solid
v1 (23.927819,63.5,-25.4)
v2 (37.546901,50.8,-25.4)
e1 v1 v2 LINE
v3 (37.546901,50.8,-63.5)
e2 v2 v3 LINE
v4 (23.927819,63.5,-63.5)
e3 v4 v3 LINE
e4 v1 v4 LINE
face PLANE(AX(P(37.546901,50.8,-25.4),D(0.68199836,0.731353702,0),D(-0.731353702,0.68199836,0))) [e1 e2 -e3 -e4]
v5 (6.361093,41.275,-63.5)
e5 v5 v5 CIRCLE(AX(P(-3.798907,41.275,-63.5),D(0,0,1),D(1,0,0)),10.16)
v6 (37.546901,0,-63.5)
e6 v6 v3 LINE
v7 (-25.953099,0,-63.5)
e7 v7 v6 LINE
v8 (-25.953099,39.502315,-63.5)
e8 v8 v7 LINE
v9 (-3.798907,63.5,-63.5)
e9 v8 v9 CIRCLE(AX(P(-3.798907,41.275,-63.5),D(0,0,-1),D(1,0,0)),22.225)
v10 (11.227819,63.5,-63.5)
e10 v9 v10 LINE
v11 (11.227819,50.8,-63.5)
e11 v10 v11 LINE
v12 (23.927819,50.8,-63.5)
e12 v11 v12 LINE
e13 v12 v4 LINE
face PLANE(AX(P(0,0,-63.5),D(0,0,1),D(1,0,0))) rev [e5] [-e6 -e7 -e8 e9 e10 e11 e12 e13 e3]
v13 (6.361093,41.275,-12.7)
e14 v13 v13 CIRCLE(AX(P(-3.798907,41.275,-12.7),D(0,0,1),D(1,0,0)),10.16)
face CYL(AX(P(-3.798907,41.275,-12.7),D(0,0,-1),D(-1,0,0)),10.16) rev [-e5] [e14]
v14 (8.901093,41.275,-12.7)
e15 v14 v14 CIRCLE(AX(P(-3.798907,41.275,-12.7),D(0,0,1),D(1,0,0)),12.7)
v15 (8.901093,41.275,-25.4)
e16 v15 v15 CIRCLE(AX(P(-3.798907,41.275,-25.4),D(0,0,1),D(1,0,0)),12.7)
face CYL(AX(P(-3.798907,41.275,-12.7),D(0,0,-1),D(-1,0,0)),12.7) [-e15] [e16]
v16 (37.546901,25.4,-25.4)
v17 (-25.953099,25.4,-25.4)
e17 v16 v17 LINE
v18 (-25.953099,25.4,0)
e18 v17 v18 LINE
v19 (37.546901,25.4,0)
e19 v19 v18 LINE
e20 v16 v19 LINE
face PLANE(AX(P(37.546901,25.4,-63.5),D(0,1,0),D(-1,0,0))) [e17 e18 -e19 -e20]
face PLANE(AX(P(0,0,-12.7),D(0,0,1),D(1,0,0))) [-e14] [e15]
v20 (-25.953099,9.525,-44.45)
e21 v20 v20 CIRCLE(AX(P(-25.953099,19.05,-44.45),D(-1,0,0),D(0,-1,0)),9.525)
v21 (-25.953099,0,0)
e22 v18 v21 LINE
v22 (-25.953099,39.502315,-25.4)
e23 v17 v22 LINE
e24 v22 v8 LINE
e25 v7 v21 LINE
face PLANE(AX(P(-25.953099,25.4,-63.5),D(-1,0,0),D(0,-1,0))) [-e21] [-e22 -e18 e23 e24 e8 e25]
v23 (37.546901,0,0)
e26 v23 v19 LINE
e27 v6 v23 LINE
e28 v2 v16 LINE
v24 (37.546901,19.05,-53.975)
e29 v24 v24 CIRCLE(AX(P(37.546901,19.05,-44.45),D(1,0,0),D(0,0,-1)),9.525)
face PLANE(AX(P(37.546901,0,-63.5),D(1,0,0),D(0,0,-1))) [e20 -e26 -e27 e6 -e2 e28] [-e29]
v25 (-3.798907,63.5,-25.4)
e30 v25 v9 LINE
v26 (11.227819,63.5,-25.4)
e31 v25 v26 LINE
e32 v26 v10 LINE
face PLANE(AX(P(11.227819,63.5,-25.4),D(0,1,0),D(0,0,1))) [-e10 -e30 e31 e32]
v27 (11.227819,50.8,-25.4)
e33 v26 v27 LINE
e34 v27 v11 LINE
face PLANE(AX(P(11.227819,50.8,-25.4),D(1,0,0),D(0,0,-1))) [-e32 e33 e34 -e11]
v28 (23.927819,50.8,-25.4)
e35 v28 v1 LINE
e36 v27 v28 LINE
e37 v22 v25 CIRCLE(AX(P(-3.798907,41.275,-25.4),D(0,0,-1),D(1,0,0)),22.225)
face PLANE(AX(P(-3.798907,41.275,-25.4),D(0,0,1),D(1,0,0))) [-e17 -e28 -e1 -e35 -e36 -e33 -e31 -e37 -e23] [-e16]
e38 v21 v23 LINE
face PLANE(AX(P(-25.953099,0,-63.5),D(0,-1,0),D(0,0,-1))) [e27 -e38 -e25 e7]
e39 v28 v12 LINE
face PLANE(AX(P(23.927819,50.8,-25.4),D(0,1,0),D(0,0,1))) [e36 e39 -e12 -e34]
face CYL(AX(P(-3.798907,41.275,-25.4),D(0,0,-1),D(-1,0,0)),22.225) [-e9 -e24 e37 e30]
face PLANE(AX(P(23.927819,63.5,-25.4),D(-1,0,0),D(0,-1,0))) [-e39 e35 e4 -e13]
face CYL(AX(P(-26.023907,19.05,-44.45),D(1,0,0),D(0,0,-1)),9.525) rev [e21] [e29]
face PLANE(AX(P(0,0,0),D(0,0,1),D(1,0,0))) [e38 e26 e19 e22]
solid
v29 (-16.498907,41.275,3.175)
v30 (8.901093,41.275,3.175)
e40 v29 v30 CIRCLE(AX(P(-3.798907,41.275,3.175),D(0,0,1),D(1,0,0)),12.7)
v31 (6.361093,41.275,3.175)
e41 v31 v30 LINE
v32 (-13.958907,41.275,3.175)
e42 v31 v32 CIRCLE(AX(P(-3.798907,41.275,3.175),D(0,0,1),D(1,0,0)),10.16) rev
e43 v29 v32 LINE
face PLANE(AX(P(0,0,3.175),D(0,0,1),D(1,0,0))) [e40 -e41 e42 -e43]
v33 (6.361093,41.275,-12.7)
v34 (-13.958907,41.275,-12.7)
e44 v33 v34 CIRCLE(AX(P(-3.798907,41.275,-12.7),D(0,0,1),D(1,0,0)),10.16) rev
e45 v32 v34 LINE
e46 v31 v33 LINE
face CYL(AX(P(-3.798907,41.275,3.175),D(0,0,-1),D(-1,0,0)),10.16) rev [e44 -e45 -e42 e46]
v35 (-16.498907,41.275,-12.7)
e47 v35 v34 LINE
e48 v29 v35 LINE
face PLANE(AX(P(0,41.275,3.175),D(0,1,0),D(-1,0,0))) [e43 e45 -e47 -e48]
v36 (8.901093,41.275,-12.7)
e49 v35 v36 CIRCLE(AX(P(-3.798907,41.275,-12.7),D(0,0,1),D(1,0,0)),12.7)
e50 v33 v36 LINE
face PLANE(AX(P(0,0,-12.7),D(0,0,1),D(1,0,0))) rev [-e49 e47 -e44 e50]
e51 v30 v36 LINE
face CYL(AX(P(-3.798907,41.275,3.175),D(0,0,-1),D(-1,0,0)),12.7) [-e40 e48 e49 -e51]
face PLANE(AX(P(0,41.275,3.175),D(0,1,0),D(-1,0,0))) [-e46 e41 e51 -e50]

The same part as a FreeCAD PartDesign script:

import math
import FreeCAD as App
import Part
import Sketcher

V = App.Vector
Q = App.Units.Quantity


def add_polygon(sketch, points):
    """Adds a closed chain of lines whose ends are joined by coincident constraints."""
    first, n = sketch.GeometryCount, len(points)
    for a, b in zip(points, points[1:] + points[:1]):
        sketch.addGeometry(Part.LineSegment(App.Vector(*a, 0), App.Vector(*b, 0)), False)
    for i in range(n):
        sketch.addConstraint(Sketcher.Constraint("Coincident", first + i, 2, first + (i + 1) % n, 1))

doc = App.newDocument("Part")
body = doc.addObject("PartDesign::Body", "Body")

sketch1 = body.newObject("Sketcher::SketchObject", "Sketch")
sketch1.AttachmentSupport = (doc.getObject("XY_Plane"), [""])
sketch1.MapMode = "FlatFace"
add_polygon(sketch1, [(-25.953099, 25.4), (-25.953099, 0), (37.546901, 0), (37.546901, 25.4)])
sketch1.addConstraint(Sketcher.Constraint("Vertical", 0))
sketch1.addConstraint(Sketcher.Constraint("Horizontal", 1))
sketch1.addConstraint(Sketcher.Constraint("Vertical", 2))
sketch1.addConstraint(Sketcher.Constraint("Horizontal", 3))
sketch1.addConstraint(Sketcher.Constraint("PointOnObject", 0, 2, -1))
sketch1.addConstraint(Sketcher.Constraint("DistanceY", 0, 2, 0, 1, Q("1 in")))
sketch1.addConstraint(Sketcher.Constraint("DistanceX", 1, 1, 1, 2, Q("2.5 in")))
sketch1.addConstraint(Sketcher.Constraint("DistanceX", 0, 2, -1, 1, 25.953099))
pad1 = body.newObject("PartDesign::Pad", "Pad")
pad1.Profile = sketch1
pad1.Length = Q("2.5 in")
pad1.Reversed = True

sketch2 = body.newObject("Sketcher::SketchObject", "Sketch001")
sketch2.AttachmentSupport = (doc.getObject("XY_Plane"), [""])
sketch2.MapMode = "FlatFace"
sketch2.AttachmentOffset = App.Placement(V(0, 0, -2.5 * 25.4), App.Rotation())
sketch2.addGeometry(Part.LineSegment(V(37.546901, 50.8, 0), V(37.546901, 25.4, 0)), False)
sketch2.addGeometry(Part.LineSegment(V(37.546901, 25.4, 0), V(-25.953099, 25.4, 0)), False)
sketch2.addGeometry(Part.LineSegment(V(-25.953099, 25.4, 0), V(-25.953099, 39.502315, 0)), False)
sketch2.addGeometry(Part.ArcOfCircle(Part.Circle(V(-3.798907, 41.275, 0), V(0, 0, 1), 22.225), math.radians(90), math.radians(184.57482)), False)
sketch2.addGeometry(Part.LineSegment(V(-3.798907, 63.5, 0), V(11.227819, 63.5, 0)), False)
sketch2.addGeometry(Part.LineSegment(V(11.227819, 63.5, 0), V(11.227819, 50.8, 0)), False)
sketch2.addGeometry(Part.LineSegment(V(11.227819, 50.8, 0), V(23.927819, 50.8, 0)), False)
sketch2.addGeometry(Part.LineSegment(V(23.927819, 50.8, 0), V(23.927819, 63.5, 0)), False)
sketch2.addGeometry(Part.LineSegment(V(23.927819, 63.5, 0), V(37.546901, 50.8, 0)), False)
sketch2.addConstraint(Sketcher.Constraint("Coincident", 0, 2, 1, 1))
sketch2.addConstraint(Sketcher.Constraint("Coincident", 1, 2, 2, 1))
sketch2.addConstraint(Sketcher.Constraint("Coincident", 2, 2, 3, 2))
sketch2.addConstraint(Sketcher.Constraint("Tangent", 3, 1, 4, 1))
sketch2.addConstraint(Sketcher.Constraint("Coincident", 4, 2, 5, 1))
sketch2.addConstraint(Sketcher.Constraint("Coincident", 5, 2, 6, 1))
sketch2.addConstraint(Sketcher.Constraint("Coincident", 6, 2, 7, 1))
sketch2.addConstraint(Sketcher.Constraint("Coincident", 7, 2, 8, 1))
sketch2.addConstraint(Sketcher.Constraint("Coincident", 8, 2, 0, 1))
sketch2.addConstraint(Sketcher.Constraint("Vertical", 0))
sketch2.addConstraint(Sketcher.Constraint("Horizontal", 1))
sketch2.addConstraint(Sketcher.Constraint("Vertical", 2))
sketch2.addConstraint(Sketcher.Constraint("Horizontal", 4))
sketch2.addConstraint(Sketcher.Constraint("Vertical", 5))
sketch2.addConstraint(Sketcher.Constraint("Horizontal", 6))
sketch2.addConstraint(Sketcher.Constraint("Vertical", 7))
sketch2.addConstraint(Sketcher.Constraint("Horizontal", 4, 2, 7, 2))
sketch2.addConstraint(Sketcher.Constraint("Horizontal", 6, 2, 8, 2))
sketch2.addConstraint(Sketcher.Constraint("Equal", 6, 5))
sketch2.addConstraint(Sketcher.Constraint("DistanceY", 0, 2, 0, 1, Q("1 in")))
sketch2.addConstraint(Sketcher.Constraint("DistanceX", 1, 2, 1, 1, Q("2.5 in")))
sketch2.addConstraint(Sketcher.Constraint("DistanceX", 6, 1, 6, 2, Q("0.5 in")))
sketch2.addConstraint(Sketcher.Constraint("DistanceY", -1, 1, 0, 2, Q("1 in")))
sketch2.addConstraint(Sketcher.Constraint("Angle", 8, Q("-43 deg")))
sketch2.addConstraint(Sketcher.Constraint("Radius", 3, Q("0.875 in")))
sketch2.addConstraint(Sketcher.Constraint("DistanceX", -1, 1, 0, 2, 37.546901))
sketch2.addConstraint(Sketcher.Constraint("DistanceX", 4, 1, 4, 2, 15.026726))
pad2 = body.newObject("PartDesign::Pad", "Pad001")
pad2.Profile = sketch2
pad2.Length = Q("1.5 in")

sketch3 = body.newObject("Sketcher::SketchObject", "Sketch002")
sketch3.AttachmentSupport = (doc.getObject("XY_Plane"), [""])
sketch3.MapMode = "FlatFace"
sketch3.AttachmentOffset = App.Placement(V(0, 0, -1 * 25.4), App.Rotation())
sketch3.addGeometry(Part.Circle(V(-3.798907, 41.275, 0), V(0, 0, 1), 12.7), False)
sketch3.addGeometry(Part.Circle(V(-3.798907, 41.275, 0), V(0, 0, 1), 10.16), False)
sketch3.addConstraint(Sketcher.Constraint("Coincident", 1, 3, 0, 3))
sketch3.addConstraint(Sketcher.Constraint("Diameter", 0, Q("1 in")))
sketch3.addConstraint(Sketcher.Constraint("Diameter", 1, Q("0.8 in")))
sketch3.addConstraint(Sketcher.Constraint("DistanceY", -1, 1, 0, 3, Q("1.625 in")))
sketch3.addConstraint(Sketcher.Constraint("DistanceX", 0, 3, -1, 1, 3.798907))
pad3 = body.newObject("PartDesign::Pad", "Pad002")
pad3.Profile = sketch3
pad3.Length = Q("0.5 in")

sketch4 = body.newObject("Sketcher::SketchObject", "Sketch003")
sketch4.AttachmentSupport = (doc.getObject("XY_Plane"), [""])
sketch4.MapMode = "FlatFace"
sketch4.AttachmentOffset = App.Placement(V(0, 0, -1 * 25.4), App.Rotation())
sketch4.addGeometry(Part.Circle(V(-3.798907, 41.275, 0), V(0, 0, 1), 10.16), False)
sketch4.addConstraint(Sketcher.Constraint("Diameter", 0, Q("0.8 in")))
sketch4.addConstraint(Sketcher.Constraint("DistanceY", -1, 1, 0, 3, Q("1.625 in")))
sketch4.addConstraint(Sketcher.Constraint("DistanceX", 0, 3, -1, 1, 3.798907))
pocket1 = body.newObject("PartDesign::Pocket", "Pocket")
pocket1.Profile = sketch4
pocket1.Type = "ThroughAll"

sketch5 = body.newObject("Sketcher::SketchObject", "Sketch004")
sketch5.AttachmentSupport = (doc.getObject("YZ_Plane"), [""])
sketch5.MapMode = "FlatFace"
sketch5.AttachmentOffset = App.Placement(V(0, 0, 37.546901), App.Rotation())
sketch5.addGeometry(Part.Circle(V(19.05, -44.45, 0), V(0, 0, 1), 9.525), False)
sketch5.addConstraint(Sketcher.Constraint("Diameter", 0, Q("0.75 in")))
sketch5.addConstraint(Sketcher.Constraint("DistanceX", -1, 1, 0, 3, Q("0.75 in")))
sketch5.addConstraint(Sketcher.Constraint("DistanceY", 0, 3, -1, 1, Q("1.75 in")))
pocket2 = body.newObject("PartDesign::Pocket", "Pocket001")
pocket2.Profile = sketch5
pocket2.Type = "ThroughAll"
body2 = doc.addObject("PartDesign::Body", "Body001")

sketch6 = body2.newObject("Sketcher::SketchObject", "Sketch005")
sketch6.AttachmentSupport = (doc.getObject("XY_Plane001"), [""])
sketch6.MapMode = "FlatFace"
sketch6.AttachmentOffset = App.Placement(V(0, 0, -0.5 * 25.4), App.Rotation())
sketch6.addGeometry(Part.LineSegment(V(-13.958907, 41.275, 0), V(-16.498907, 41.275, 0)), False)
sketch6.addGeometry(Part.ArcOfCircle(Part.Circle(V(-3.798907, 41.275, 0), V(0, 0, 1), 12.7), math.radians(180), math.radians(360)), False)
sketch6.addGeometry(Part.LineSegment(V(8.901093, 41.275, 0), V(6.361093, 41.275, 0)), False)
sketch6.addGeometry(Part.ArcOfCircle(Part.Circle(V(-3.798907, 41.275, 0), V(0, 0, 1), 10.16), math.radians(180), math.radians(360)), False)
sketch6.addConstraint(Sketcher.Constraint("Coincident", 0, 2, 1, 1))
sketch6.addConstraint(Sketcher.Constraint("Coincident", 1, 2, 2, 1))
sketch6.addConstraint(Sketcher.Constraint("Coincident", 2, 2, 3, 2))
sketch6.addConstraint(Sketcher.Constraint("Coincident", 3, 1, 0, 1))
sketch6.addConstraint(Sketcher.Constraint("Horizontal", 0))
sketch6.addConstraint(Sketcher.Constraint("Horizontal", 2))
sketch6.addConstraint(Sketcher.Constraint("Coincident", 3, 3, 1, 3))
sketch6.addConstraint(Sketcher.Constraint("Horizontal", 3, 3, 0, 2))
sketch6.addConstraint(Sketcher.Constraint("Horizontal", 0, 2, 1, 2))
sketch6.addConstraint(Sketcher.Constraint("Radius", 1, Q("0.5 in")))
sketch6.addConstraint(Sketcher.Constraint("Radius", 3, Q("0.4 in")))
sketch6.addConstraint(Sketcher.Constraint("DistanceY", -1, 1, 1, 3, Q("1.625 in")))
sketch6.addConstraint(Sketcher.Constraint("DistanceX", 1, 3, -1, 1, 3.798907))
pad4 = body2.newObject("PartDesign::Pad", "Pad003")
pad4.Profile = sketch6
pad4.Length = Q("0.625 in")

doc.recompute()
